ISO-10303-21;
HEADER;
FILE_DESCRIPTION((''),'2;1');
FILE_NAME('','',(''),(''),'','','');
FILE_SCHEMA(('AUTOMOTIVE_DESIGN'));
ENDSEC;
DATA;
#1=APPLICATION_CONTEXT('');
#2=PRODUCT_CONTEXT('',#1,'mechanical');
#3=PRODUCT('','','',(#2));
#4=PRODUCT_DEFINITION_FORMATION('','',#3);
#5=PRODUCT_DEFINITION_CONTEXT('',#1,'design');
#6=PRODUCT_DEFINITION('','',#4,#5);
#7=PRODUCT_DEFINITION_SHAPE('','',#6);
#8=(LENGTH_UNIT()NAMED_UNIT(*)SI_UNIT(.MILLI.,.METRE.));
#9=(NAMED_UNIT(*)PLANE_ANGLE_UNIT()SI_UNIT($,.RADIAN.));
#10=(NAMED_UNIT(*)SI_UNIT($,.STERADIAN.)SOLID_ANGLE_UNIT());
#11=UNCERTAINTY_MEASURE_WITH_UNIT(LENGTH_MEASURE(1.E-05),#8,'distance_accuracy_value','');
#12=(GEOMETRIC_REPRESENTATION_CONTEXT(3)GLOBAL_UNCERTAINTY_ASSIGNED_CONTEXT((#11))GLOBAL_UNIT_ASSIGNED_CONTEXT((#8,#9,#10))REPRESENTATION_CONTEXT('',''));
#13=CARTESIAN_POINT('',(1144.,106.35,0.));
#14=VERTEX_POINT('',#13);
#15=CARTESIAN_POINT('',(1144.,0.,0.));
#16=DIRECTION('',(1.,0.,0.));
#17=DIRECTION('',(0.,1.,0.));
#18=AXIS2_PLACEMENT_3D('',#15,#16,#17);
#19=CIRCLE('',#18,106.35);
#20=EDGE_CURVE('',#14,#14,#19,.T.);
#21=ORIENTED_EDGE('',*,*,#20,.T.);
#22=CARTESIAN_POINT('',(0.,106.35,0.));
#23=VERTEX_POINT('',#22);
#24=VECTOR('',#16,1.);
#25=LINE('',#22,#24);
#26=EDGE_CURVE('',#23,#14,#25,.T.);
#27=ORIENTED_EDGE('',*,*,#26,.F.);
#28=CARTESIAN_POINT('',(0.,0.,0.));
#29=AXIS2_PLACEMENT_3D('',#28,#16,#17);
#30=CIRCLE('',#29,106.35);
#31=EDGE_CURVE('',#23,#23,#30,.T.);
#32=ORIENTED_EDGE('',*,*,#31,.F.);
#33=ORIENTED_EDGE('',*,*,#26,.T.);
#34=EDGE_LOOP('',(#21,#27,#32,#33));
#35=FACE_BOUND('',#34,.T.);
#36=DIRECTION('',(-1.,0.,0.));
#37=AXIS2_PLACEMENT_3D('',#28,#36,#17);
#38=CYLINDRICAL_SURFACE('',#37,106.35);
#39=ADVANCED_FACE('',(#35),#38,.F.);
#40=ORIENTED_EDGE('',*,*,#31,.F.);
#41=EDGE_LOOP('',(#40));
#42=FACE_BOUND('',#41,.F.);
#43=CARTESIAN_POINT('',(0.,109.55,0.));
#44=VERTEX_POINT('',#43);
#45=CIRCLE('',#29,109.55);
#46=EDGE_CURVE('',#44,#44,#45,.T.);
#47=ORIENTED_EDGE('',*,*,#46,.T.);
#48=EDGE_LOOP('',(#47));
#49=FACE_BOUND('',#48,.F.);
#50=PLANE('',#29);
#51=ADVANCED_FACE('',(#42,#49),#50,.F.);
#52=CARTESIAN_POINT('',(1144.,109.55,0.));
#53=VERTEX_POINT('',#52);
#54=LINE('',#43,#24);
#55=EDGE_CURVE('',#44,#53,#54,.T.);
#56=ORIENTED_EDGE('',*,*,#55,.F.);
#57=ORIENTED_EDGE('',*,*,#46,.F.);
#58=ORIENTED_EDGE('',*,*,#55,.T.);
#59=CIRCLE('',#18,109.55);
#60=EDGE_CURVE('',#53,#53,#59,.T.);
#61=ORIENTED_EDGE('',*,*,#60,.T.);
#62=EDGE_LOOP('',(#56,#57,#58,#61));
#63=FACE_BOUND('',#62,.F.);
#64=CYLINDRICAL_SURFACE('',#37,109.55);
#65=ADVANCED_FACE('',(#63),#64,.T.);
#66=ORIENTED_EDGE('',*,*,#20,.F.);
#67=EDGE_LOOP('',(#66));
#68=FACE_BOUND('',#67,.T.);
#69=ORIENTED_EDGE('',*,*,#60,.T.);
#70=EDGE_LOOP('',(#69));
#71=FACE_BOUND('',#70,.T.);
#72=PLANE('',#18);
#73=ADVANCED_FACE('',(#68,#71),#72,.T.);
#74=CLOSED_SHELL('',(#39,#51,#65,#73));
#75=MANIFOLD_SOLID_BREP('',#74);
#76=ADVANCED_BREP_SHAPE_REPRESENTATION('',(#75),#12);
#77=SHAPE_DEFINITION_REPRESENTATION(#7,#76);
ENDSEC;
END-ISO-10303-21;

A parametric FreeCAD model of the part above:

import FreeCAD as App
import Part
import Sketcher
Q = App.Units.Quantity

doc = App.newDocument("Part")
body = doc.addObject("PartDesign::Body", "Body")

sketch1 = body.newObject("Sketcher::SketchObject", "Sketch")
sketch1.AttachmentSupport = (doc.getObject("YZ_Plane"), [""])
sketch1.MapMode = "FlatFace"
sketch1.addGeometry(Part.Circle(App.Vector(0, 0, 0), App.Vector(0, 0, 1), 110), False)
sketch1.addGeometry(Part.Circle(App.Vector(0, 0, 0), App.Vector(0, 0, 1), 106), False)
sketch1.addConstraint(Sketcher.Constraint("Coincident", 0, 3, -1, 1))
sketch1.addConstraint(Sketcher.Constraint("Coincident", 1, 3, -1, 1))
sketch1.addConstraint(Sketcher.Constraint("Diameter", 0, Q("219.1 mm")))
sketch1.addConstraint(Sketcher.Constraint("Diameter", 1, Q("212.7 mm")))
pad1 = body.newObject("PartDesign::Pad", "Pad")
pad1.Profile = sketch1
pad1.Length = 1144

doc.recompute()
